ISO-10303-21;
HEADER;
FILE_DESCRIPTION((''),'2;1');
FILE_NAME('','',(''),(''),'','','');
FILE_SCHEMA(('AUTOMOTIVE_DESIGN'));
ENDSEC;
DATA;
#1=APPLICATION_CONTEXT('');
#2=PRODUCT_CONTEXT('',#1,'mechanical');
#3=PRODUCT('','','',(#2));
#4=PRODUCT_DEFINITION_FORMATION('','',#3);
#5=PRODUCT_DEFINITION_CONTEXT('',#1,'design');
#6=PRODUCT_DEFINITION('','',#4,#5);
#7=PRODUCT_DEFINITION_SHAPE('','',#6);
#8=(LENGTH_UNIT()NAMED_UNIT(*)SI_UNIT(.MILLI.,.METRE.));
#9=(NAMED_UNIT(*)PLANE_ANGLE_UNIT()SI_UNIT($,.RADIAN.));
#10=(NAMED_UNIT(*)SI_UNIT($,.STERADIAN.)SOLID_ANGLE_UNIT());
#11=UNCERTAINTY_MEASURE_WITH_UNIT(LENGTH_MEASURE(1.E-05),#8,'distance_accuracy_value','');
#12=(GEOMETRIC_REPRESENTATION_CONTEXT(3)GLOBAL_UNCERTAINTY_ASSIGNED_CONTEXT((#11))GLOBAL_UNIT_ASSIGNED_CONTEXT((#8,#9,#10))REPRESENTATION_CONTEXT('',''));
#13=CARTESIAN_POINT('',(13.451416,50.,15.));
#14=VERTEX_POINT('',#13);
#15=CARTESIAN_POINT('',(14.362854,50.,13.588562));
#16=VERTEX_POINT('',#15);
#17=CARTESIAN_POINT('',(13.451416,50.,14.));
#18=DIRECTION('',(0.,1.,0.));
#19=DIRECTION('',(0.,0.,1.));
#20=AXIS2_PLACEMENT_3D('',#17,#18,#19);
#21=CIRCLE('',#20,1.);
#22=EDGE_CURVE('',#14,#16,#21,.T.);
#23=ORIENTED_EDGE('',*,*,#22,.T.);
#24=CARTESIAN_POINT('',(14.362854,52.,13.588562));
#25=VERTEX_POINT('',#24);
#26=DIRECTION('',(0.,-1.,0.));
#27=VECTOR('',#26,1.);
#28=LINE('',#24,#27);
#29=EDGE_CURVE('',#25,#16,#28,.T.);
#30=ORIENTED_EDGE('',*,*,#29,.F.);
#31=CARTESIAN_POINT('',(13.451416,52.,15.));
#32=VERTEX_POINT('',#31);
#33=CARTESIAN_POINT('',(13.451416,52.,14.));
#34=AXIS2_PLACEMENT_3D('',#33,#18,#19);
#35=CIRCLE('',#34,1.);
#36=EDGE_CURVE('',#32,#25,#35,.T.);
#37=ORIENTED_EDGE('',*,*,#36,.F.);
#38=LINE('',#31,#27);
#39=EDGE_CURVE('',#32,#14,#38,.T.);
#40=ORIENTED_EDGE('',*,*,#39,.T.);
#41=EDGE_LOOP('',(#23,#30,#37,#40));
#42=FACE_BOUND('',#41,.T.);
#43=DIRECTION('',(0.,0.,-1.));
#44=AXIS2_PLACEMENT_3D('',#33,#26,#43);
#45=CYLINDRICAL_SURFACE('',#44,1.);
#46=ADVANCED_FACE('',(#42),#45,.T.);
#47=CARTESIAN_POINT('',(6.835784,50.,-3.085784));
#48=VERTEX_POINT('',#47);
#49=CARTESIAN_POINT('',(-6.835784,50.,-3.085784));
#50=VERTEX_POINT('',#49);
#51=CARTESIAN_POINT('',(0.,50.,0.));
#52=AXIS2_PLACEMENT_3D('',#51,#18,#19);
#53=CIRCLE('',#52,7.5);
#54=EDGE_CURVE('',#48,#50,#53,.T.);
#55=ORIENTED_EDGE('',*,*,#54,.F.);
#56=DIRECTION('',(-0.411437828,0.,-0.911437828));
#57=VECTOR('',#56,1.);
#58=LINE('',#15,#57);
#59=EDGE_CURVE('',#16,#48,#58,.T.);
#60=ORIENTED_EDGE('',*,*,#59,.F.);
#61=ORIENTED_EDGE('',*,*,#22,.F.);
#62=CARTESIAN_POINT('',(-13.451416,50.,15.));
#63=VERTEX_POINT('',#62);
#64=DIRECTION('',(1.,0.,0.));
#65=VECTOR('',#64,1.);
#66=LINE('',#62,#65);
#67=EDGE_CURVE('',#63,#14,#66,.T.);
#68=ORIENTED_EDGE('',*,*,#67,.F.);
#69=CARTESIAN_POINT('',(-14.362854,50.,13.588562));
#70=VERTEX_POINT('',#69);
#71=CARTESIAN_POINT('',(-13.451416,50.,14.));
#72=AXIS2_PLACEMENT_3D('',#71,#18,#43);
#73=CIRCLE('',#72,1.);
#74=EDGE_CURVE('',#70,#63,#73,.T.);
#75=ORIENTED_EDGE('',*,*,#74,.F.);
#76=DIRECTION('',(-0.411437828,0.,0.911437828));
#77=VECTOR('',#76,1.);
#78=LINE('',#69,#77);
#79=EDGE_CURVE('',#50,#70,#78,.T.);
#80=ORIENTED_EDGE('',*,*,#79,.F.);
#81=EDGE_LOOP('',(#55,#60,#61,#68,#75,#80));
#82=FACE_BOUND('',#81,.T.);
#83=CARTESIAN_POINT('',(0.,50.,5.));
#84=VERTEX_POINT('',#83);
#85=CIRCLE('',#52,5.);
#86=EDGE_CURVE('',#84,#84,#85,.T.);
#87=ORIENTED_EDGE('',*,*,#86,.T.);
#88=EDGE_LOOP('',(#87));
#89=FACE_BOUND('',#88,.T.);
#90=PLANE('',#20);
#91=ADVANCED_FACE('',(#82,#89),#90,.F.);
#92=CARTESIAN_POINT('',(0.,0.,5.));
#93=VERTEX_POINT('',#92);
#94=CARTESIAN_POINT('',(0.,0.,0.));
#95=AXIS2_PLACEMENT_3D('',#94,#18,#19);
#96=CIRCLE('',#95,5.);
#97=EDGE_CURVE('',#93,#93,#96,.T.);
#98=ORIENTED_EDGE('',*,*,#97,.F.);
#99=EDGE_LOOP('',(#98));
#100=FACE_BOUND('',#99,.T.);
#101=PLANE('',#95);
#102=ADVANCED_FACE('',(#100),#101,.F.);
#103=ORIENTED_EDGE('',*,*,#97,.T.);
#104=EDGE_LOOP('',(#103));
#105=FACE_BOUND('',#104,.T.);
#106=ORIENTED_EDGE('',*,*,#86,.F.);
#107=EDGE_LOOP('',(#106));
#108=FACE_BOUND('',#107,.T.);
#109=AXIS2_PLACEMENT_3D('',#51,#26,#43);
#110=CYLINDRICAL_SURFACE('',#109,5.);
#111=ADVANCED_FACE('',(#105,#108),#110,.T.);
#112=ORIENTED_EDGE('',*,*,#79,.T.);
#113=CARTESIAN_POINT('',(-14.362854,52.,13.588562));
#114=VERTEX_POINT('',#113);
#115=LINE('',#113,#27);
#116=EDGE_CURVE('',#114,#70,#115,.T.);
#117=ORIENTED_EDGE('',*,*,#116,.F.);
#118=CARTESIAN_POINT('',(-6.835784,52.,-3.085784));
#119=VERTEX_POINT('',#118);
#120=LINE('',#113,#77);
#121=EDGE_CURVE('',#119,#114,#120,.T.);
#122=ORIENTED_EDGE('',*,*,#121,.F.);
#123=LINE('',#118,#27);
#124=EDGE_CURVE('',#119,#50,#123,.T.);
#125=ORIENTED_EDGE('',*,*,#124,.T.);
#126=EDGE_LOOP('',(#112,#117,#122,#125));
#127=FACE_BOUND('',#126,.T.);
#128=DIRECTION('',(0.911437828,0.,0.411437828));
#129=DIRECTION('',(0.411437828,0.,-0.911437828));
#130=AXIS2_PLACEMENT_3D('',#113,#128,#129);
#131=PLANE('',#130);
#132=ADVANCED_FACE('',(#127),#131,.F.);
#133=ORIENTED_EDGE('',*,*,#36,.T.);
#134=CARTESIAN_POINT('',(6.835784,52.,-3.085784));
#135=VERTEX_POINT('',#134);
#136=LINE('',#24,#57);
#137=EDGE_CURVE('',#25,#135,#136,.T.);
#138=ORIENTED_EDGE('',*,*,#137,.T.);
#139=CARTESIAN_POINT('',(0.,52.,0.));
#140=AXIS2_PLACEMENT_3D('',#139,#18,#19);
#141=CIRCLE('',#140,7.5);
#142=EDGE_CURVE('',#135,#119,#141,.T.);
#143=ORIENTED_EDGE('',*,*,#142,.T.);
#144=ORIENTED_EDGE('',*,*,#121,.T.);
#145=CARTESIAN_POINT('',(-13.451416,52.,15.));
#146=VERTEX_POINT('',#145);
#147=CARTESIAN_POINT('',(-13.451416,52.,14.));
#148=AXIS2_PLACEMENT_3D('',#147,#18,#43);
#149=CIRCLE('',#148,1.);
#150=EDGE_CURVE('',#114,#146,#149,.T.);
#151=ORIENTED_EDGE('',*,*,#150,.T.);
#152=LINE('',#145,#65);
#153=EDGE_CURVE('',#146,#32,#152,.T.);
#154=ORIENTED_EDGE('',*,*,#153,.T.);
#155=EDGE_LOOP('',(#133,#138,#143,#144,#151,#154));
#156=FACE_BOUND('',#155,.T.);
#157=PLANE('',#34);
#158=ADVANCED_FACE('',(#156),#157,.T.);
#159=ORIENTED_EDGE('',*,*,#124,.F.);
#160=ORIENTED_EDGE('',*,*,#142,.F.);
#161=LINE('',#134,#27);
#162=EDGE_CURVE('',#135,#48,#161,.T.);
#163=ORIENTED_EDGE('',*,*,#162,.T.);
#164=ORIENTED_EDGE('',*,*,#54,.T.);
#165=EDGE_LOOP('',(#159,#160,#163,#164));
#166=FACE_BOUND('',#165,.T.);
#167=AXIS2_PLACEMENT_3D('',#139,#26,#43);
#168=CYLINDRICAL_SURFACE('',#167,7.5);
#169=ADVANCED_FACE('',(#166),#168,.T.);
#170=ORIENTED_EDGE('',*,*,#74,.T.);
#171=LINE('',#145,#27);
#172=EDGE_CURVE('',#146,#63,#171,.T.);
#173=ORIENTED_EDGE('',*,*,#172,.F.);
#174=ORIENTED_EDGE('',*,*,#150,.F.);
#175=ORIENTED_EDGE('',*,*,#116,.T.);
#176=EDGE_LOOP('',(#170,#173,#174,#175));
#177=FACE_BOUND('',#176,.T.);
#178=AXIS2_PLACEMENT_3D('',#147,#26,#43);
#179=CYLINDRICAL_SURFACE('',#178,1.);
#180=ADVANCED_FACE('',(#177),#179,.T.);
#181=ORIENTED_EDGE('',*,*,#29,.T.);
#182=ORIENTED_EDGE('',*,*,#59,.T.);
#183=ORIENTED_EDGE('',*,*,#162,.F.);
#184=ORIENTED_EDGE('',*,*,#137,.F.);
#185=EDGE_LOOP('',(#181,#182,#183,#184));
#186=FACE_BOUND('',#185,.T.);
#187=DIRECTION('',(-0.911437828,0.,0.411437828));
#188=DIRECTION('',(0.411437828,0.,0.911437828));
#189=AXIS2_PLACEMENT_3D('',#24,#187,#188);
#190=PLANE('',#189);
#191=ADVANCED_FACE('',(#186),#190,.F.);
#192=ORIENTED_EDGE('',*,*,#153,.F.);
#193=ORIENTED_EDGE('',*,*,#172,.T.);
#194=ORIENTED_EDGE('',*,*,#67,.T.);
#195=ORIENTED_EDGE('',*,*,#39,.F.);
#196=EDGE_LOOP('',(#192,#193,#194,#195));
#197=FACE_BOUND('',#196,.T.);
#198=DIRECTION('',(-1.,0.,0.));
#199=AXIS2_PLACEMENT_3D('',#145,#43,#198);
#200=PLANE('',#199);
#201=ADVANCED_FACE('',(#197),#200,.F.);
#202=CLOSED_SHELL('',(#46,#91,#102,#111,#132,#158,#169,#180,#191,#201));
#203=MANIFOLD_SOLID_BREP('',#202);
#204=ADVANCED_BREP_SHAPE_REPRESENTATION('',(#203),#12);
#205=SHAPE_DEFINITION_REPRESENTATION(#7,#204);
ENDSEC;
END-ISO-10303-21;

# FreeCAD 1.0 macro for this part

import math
import FreeCAD as App
import Part
import Sketcher
from FreeCAD import Vector
Q = App.Units.Quantity

doc = App.newDocument("Part")
body = doc.addObject("PartDesign::Body", "Body")

sketch1 = body.newObject("Sketcher::SketchObject", "Sketch")
sketch1.AttachmentSupport = (doc.getObject("XZ_Plane"), [""])
sketch1.MapMode = "FlatFace"
sketch1.addGeometry(Part.Circle(Vector(0, 0, 0), Vector(0, 0, 1), 5), False)
sketch1.addConstraint([
    Sketcher.Constraint("Coincident", 0, 3, -1, 1),
    Sketcher.Constraint("Diameter", 0, Q("10 mm")),
])
pad1 = body.newObject("PartDesign::Pad", "Pad")
pad1.Profile = sketch1
pad1.Length = 50
pad1.Reversed = True

sketch2 = body.newObject("Sketcher::SketchObject", "Sketch001")
sketch2.AttachmentSupport = (doc.getObject("XZ_Plane"), [""])
sketch2.MapMode = "FlatFace"
sketch2.AttachmentOffset = App.Placement(Vector(0, 0, -50), App.Rotation())
sketch2.addGeometry([
    Part.LineSegment(Vector(-13.451416, 15, 0), Vector(13.451416, 15, 0)),
    Part.ArcOfCircle(Part.Circle(Vector(13.451416, 14, 0), Vector(0, 0, 1), 1), math.radians(-24.295189), math.radians(90)),
    Part.LineSegment(Vector(14.362854, 13.588562, 0), Vector(6.835784, -3.085784, 0)),
    Part.ArcOfCircle(Part.Circle(Vector(0, 0, 0), Vector(0, 0, 1), 7.5), math.radians(-155.704811), math.radians(-24.295189)),
    Part.LineSegment(Vector(-6.835784, -3.085784, 0), Vector(-14.362854, 13.588562, 0)),
    Part.ArcOfCircle(Part.Circle(Vector(-13.451416, 14, 0), Vector(0, 0, 1), 1), math.radians(90), math.radians(204.295189)),
], False)
sketch2.addConstraint([
    Sketcher.Constraint("Tangent", 0, 2, 1, 2),
    Sketcher.Constraint("Tangent", 1, 1, 2, 1),
    Sketcher.Constraint("Tangent", 2, 2, 3, 2),
    Sketcher.Constraint("Tangent", 3, 1, 4, 1),
    Sketcher.Constraint("Tangent", 4, 2, 5, 2),
    Sketcher.Constraint("Tangent", 5, 1, 0, 1),
    Sketcher.Constraint("Horizontal", 0),
    Sketcher.Constraint("Coincident", 3, 3, -1, 1),
    Sketcher.Constraint("Equal", 1, 5),
    Sketcher.Constraint("Horizontal", 2, 2, 3, 1),
    Sketcher.Constraint("Radius", 1, Q("1 mm")),
    Sketcher.Constraint("Radius", 3, Q("7.5 mm")),
    Sketcher.Constraint("DistanceY", -1, 1, 1, 3, Q("14 mm")),
    Sketcher.Constraint("DistanceX", 5, 3, 2, 2, Q("20.2872 mm")),
])
pad2 = body.newObject("PartDesign::Pad", "Pad001")
pad2.Profile = sketch2
pad2.Length = 2
pad2.Reversed = True

doc.recompute()
